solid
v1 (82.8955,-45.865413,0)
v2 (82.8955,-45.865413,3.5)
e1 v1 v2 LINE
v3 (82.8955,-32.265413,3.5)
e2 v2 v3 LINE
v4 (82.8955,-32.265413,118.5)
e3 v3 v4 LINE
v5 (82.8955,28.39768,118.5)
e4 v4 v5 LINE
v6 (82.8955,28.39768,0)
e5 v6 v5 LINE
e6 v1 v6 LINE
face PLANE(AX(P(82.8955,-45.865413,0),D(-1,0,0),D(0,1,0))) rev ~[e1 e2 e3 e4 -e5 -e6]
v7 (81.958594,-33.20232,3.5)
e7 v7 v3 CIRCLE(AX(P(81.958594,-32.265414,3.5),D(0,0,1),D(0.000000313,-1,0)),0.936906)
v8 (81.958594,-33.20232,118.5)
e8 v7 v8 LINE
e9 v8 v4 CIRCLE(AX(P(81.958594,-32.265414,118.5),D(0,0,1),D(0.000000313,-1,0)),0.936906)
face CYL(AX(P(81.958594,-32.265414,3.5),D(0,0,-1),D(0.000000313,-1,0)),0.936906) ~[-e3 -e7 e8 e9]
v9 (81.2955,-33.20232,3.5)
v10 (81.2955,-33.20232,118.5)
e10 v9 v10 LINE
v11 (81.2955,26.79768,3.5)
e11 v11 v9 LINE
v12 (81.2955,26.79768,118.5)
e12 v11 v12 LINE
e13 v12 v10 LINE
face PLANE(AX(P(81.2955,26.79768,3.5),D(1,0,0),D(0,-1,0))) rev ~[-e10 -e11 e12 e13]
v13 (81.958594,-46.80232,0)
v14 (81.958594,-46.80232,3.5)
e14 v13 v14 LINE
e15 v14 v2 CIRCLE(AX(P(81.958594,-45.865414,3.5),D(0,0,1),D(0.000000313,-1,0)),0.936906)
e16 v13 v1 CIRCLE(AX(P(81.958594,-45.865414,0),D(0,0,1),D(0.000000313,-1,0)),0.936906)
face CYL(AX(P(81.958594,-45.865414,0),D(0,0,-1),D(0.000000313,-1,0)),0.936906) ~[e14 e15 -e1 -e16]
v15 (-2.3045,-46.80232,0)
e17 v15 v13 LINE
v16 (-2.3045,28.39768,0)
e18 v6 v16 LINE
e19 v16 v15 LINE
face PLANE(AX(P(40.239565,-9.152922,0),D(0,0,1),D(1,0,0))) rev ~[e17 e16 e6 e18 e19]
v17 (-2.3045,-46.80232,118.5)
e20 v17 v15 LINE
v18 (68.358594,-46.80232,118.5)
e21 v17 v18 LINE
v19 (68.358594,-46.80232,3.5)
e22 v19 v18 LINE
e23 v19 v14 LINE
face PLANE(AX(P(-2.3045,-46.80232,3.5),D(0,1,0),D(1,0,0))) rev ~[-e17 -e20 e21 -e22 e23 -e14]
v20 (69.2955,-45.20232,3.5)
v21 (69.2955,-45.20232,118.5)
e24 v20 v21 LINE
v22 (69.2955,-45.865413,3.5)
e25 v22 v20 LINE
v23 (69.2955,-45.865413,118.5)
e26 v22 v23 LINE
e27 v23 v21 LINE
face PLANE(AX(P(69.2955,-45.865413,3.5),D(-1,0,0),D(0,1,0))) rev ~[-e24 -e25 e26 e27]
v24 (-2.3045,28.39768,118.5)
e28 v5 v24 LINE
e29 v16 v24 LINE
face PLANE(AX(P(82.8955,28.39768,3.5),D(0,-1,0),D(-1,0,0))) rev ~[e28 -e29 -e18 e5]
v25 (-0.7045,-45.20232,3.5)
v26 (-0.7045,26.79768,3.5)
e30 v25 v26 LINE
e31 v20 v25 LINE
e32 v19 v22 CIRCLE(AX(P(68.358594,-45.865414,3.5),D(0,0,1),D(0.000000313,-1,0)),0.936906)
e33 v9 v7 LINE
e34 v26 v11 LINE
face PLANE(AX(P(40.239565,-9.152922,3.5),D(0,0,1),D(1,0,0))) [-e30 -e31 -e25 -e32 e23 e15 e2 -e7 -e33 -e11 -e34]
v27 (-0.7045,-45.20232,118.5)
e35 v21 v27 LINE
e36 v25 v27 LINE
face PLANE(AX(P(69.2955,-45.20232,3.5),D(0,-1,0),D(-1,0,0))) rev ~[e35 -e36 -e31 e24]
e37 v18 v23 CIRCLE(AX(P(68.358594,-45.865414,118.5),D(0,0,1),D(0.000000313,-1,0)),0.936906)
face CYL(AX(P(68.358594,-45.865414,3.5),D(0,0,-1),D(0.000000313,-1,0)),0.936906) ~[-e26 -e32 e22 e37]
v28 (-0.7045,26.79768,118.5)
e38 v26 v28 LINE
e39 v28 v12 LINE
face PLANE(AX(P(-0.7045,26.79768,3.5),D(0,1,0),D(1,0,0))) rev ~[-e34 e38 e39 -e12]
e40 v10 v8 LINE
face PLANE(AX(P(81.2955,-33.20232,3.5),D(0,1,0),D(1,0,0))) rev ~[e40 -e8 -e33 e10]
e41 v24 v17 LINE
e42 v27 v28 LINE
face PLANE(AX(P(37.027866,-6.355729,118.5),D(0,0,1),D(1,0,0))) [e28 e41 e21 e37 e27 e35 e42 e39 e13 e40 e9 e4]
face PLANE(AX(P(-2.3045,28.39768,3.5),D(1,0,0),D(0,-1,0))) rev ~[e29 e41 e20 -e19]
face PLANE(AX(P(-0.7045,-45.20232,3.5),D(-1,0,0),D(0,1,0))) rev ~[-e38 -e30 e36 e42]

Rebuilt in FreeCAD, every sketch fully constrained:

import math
import FreeCAD as App
import Part
import Sketcher
from FreeCAD import Vector
Q = App.Units.Quantity

doc = App.newDocument("Part")
params = doc.addObject("Spreadsheet::Sheet", "Params")
for row, (alias, value) in enumerate([
    ("sketch1_width", "85.2 mm"),
    ("sketch1_height", "75.2 mm"),
    ("pad1_length", "3.5 mm"),
    ("sketch2_width", "70 mm"),
    ("sketch2_width2", "82 mm"),
    ("sketch2_height", "72 mm"),
    ("sketch2_height2", "60 mm"),
    ("sketch2_width3", "85.2 mm"),
    ("pad2_length", "115 mm"),
], start=1):
    params.set(f"A{row}", alias)
    params.set(f"B{row}", "=" + value)
    params.setAlias(f"B{row}", alias)

body = doc.addObject("PartDesign::Body", "Body")

sketch1 = body.newObject("Sketcher::SketchObject", "Sketch")
sketch1.AttachmentSupport = (doc.getObject("XY_Plane"), [""])
sketch1.MapMode = "FlatFace"
sketch1.addGeometry([
    Part.LineSegment(Vector(82.9, 28.4, 0), Vector(-2.3, 28.4, 0)),
    Part.LineSegment(Vector(-2.3, 28.4, 0), Vector(-2.3, -46.8, 0)),
    Part.LineSegment(Vector(-2.3, -46.8, 0), Vector(82, -46.8, 0)),
    Part.ArcOfCircle(Part.Circle(Vector(82, -45.9, 0), Vector(0, 0, 1), 0.9), math.radians(-90), math.radians(0)),
    Part.LineSegment(Vector(82.9, -45.9, 0), Vector(82.9, 28.4, 0)),
], False)
sketch1.addConstraint([
    Sketcher.Constraint("Coincident", 0, 2, 1, 1),
    Sketcher.Constraint("Coincident", 1, 2, 2, 1),
    Sketcher.Constraint("Tangent", 2, 2, 3, 1),
    Sketcher.Constraint("Tangent", 3, 2, 4, 1),
    Sketcher.Constraint("Coincident", 4, 2, 0, 1),
    Sketcher.Constraint("Horizontal", 0),
    Sketcher.Constraint("Vertical", 1),
    Sketcher.Constraint("Horizontal", 2),
    Sketcher.Constraint("Vertical", 4),
    Sketcher.Constraint("DistanceX", 0, 2, 0, 1, Q("85.2 mm")),
    Sketcher.Constraint("DistanceY", 1, 2, 1, 1, Q("75.2 mm")),
    Sketcher.Constraint("Radius", 3, Q("0.936906 mm")),
    Sketcher.Constraint("DistanceX", 0, 2, -1, 1, Q("2.3045 mm")),
    Sketcher.Constraint("DistanceY", -1, 1, 0, 2, Q("28.39768 mm")),
])
sketch1.setExpression("Constraints[9]", "Params.sketch1_width")
sketch1.setExpression("Constraints[10]", "Params.sketch1_height")
pad1 = body.newObject("PartDesign::Pad", "Pad")
pad1.Profile = sketch1
pad1.setExpression("Length", "Params.pad1_length")

sketch2 = body.newObject("Sketcher::SketchObject", "Sketch001")
sketch2.AttachmentSupport = (doc.getObject("XY_Plane"), [""])
sketch2.MapMode = "FlatFace"
sketch2.AttachmentOffset = App.Placement(Vector(0, 0, 3.5), App.Rotation())
sketch2.addGeometry([
    Part.LineSegment(Vector(69.3, -45.9, 0), Vector(69.3, -45.2, 0)),
    Part.LineSegment(Vector(69.3, -45.2, 0), Vector(-0.7, -45.2, 0)),
    Part.LineSegment(Vector(-0.7, -45.2, 0), Vector(-0.7, 26.8, 0)),
    Part.LineSegment(Vector(-0.7, 26.8, 0), Vector(81.3, 26.8, 0)),
    Part.LineSegment(Vector(81.3, 26.8, 0), Vector(81.3, -33.2, 0)),
    Part.LineSegment(Vector(81.3, -33.2, 0), Vector(82, -33.2, 0)),
    Part.ArcOfCircle(Part.Circle(Vector(82, -32.3, 0), Vector(0, 0, 1), 0.9), math.radians(-90), math.radians(0)),
    Part.LineSegment(Vector(82.9, -32.3, 0), Vector(82.9, 28.4, 0)),
    Part.LineSegment(Vector(82.9, 28.4, 0), Vector(-2.3, 28.4, 0)),
    Part.LineSegment(Vector(-2.3, 28.4, 0), Vector(-2.3, -46.8, 0)),
    Part.LineSegment(Vector(-2.3, -46.8, 0), Vector(68.4, -46.8, 0)),
    Part.ArcOfCircle(Part.Circle(Vector(68.4, -45.9, 0), Vector(0, 0, 1), 0.9), math.radians(-90), math.radians(0)),
], False)
sketch2.addConstraint([
    Sketcher.Constraint("Coincident", 0, 2, 1, 1),
    Sketcher.Constraint("Coincident", 1, 2, 2, 1),
    Sketcher.Constraint("Coincident", 2, 2, 3, 1),
    Sketcher.Constraint("Coincident", 3, 2, 4, 1),
    Sketcher.Constraint("Coincident", 4, 2, 5, 1),
    Sketcher.Constraint("Tangent", 5, 2, 6, 1),
    Sketcher.Constraint("Tangent", 6, 2, 7, 1),
    Sketcher.Constraint("Coincident", 7, 2, 8, 1),
    Sketcher.Constraint("Coincident", 8, 2, 9, 1),
    Sketcher.Constraint("Coincident", 9, 2, 10, 1),
    Sketcher.Constraint("Tangent", 10, 2, 11, 1),
    Sketcher.Constraint("Tangent", 11, 2, 0, 1),
    Sketcher.Constraint("Vertical", 0),
    Sketcher.Constraint("Horizontal", 1),
    Sketcher.Constraint("Vertical", 2),
    Sketcher.Constraint("Horizontal", 3),
    Sketcher.Constraint("Vertical", 4),
    Sketcher.Constraint("Horizontal", 5),
    Sketcher.Constraint("Vertical", 7),
    Sketcher.Constraint("Horizontal", 8),
    Sketcher.Constraint("Vertical", 9),
    Sketcher.Constraint("Horizontal", 10),
    Sketcher.Constraint("Equal", 6, 11),
    Sketcher.Constraint("Equal", 5, 0),
    Sketcher.Constraint("DistanceX", 1, 2, 1, 1, Q("70 mm")),
    Sketcher.Constraint("DistanceX", 3, 1, 3, 2, Q("82 mm")),
    Sketcher.Constraint("DistanceY", 2, 1, 2, 2, Q("72 mm")),
    Sketcher.Constraint("DistanceY", 4, 2, 4, 1, Q("60 mm")),
    Sketcher.Constraint("DistanceX", 8, 2, 8, 1, Q("85.2 mm")),
    Sketcher.Constraint("DistanceY", 9, 2, 9, 1, Q("75.2 mm")),
    Sketcher.Constraint("DistanceX", 11, 3, 6, 3, Q("13.6 mm")),
    Sketcher.Constraint("Radius", 6, Q("0.936906 mm")),
    Sketcher.Constraint("DistanceX", -1, 1, 0, 2, Q("69.2955 mm")),
    Sketcher.Constraint("DistanceY", 0, 2, -1, 1, Q("45.20232 mm")),
])
sketch2.setExpression("Constraints[24]", "Params.sketch2_width")
sketch2.setExpression("Constraints[25]", "Params.sketch2_width2")
sketch2.setExpression("Constraints[26]", "Params.sketch2_height")
sketch2.setExpression("Constraints[27]", "Params.sketch2_height2")
sketch2.setExpression("Constraints[28]", "Params.sketch2_width3")
pad2 = body.newObject("PartDesign::Pad", "Pad001")
pad2.Profile = sketch2
pad2.setExpression("Length", "Params.pad2_length")

doc.recompute()
